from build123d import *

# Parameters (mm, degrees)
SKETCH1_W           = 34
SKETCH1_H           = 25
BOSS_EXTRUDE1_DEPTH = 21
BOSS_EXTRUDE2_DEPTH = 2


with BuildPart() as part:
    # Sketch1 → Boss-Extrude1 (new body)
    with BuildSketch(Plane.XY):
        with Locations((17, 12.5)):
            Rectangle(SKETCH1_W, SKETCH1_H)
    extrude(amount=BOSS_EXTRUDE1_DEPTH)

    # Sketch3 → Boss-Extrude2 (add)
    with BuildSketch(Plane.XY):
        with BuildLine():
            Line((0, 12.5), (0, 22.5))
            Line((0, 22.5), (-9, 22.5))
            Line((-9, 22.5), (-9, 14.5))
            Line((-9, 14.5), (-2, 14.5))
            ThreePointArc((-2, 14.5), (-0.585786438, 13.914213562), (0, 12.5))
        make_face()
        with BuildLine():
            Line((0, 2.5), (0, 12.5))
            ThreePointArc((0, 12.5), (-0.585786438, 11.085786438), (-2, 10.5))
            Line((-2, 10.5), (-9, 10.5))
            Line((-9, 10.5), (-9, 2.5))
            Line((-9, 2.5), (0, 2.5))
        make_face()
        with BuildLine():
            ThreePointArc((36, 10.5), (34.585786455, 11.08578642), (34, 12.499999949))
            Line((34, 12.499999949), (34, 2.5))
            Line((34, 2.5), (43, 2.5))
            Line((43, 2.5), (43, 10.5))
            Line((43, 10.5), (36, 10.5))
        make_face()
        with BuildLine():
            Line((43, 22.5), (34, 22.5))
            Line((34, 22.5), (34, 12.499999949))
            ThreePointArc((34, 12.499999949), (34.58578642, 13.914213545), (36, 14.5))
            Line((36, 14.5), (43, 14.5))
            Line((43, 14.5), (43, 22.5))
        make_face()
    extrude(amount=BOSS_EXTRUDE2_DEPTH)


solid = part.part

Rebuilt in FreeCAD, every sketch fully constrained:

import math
import FreeCAD as App
import Part
import Sketcher

V = App.Vector
Q = App.Units.Quantity

doc = App.newDocument("Part")
body = doc.addObject("PartDesign::Body", "Body")

sketch1 = body.newObject("Sketcher::SketchObject", "Sketch")
sketch1.AttachmentSupport = (doc.getObject("XY_Plane"), [""])
sketch1.MapMode = "FlatFace"
sketch1.addGeometry([
    Part.LineSegment(V(0, 25, 0), V(0, 0, 0)),
    Part.LineSegment(V(0, 0, 0), V(34, 0, 0)),
    Part.LineSegment(V(34, 0, 0), V(34, 25, 0)),
    Part.LineSegment(V(34, 25, 0), V(0, 25, 0)),
], False)
sketch1.addConstraint([
    Sketcher.Constraint("Coincident", 0, 2, 1, 1),
    Sketcher.Constraint("Coincident", 1, 2, 2, 1),
    Sketcher.Constraint("Coincident", 2, 2, 3, 1),
    Sketcher.Constraint("Coincident", 3, 2, 0, 1),
    Sketcher.Constraint("Vertical", 0),
    Sketcher.Constraint("Horizontal", 1),
    Sketcher.Constraint("Vertical", 2),
    Sketcher.Constraint("Horizontal", 3),
    Sketcher.Constraint("Coincident", 0, 2, -1, 1),
    Sketcher.Constraint("DistanceX", 1, 1, 1, 2, Q("34 mm")),
    Sketcher.Constraint("DistanceY", 0, 2, 0, 1, Q("25 mm")),
])
pad1 = body.newObject("PartDesign::Pad", "Pad")
pad1.Profile = sketch1
pad1.Length = 21

sketch2 = body.newObject("Sketcher::SketchObject", "Sketch001")
sketch2.AttachmentSupport = (doc.getObject("XY_Plane"), [""])
sketch2.MapMode = "FlatFace"
sketch2.addGeometry([
    Part.LineSegment(V(0, 12.5, 0), V(0, 22.5, 0)),
    Part.LineSegment(V(0, 22.5, 0), V(-9, 22.5, 0)),
    Part.LineSegment(V(-9, 22.5, 0), V(-9, 14.5, 0)),
    Part.LineSegment(V(-9, 14.5, 0), V(-2, 14.5, 0)),
    Part.ArcOfCircle(Part.Circle(V(-2, 12.5, 0), V(0, 0, 1), 2), math.radians(0), math.radians(90)),
    Part.LineSegment(V(0, 2.5, 0), V(0, 12.5, 0)),
    Part.ArcOfCircle(Part.Circle(V(-2, 12.5, 0), V(0, 0, 1), 2), math.radians(-90), math.radians(0)),
    Part.LineSegment(V(-2, 10.5, 0), V(-9, 10.5, 0)),
    Part.LineSegment(V(-9, 10.5, 0), V(-9, 2.5, 0)),
    Part.LineSegment(V(-9, 2.5, 0), V(0, 2.5, 0)),
    Part.ArcOfCircle(Part.Circle(V(36, 12.5, 0), V(0, 0, 1), 2), math.radians(-180), math.radians(-90)),
    Part.LineSegment(V(34, 12.5, 0), V(34, 2.5, 0)),
    Part.LineSegment(V(34, 2.5, 0), V(43, 2.5, 0)),
    Part.LineSegment(V(43, 2.5, 0), V(43, 10.5, 0)),
    Part.LineSegment(V(43, 10.5, 0), V(36, 10.5, 0)),
    Part.LineSegment(V(43, 22.5, 0), V(34, 22.5, 0)),
    Part.LineSegment(V(34, 22.5, 0), V(34, 12.5, 0)),
    Part.ArcOfCircle(Part.Circle(V(36, 12.5, 0), V(0, 0, 1), 2), math.radians(90), math.radians(180)),
    Part.LineSegment(V(36, 14.5, 0), V(43, 14.5, 0)),
    Part.LineSegment(V(43, 14.5, 0), V(43, 22.5, 0)),
], False)
sketch2.addConstraint([
    Sketcher.Constraint("Coincident", 0, 2, 1, 1),
    Sketcher.Constraint("Coincident", 1, 2, 2, 1),
    Sketcher.Constraint("Coincident", 2, 2, 3, 1),
    Sketcher.Constraint("Tangent", 3, 2, 4, 2),
    Sketcher.Constraint("Tangent", 4, 1, 0, 1),
    Sketcher.Constraint("Tangent", 5, 2, 6, 2),
    Sketcher.Constraint("Tangent", 6, 1, 7, 1),
    Sketcher.Constraint("Coincident", 7, 2, 8, 1),
    Sketcher.Constraint("Coincident", 8, 2, 9, 1),
    Sketcher.Constraint("Coincident", 9, 2, 5, 1),
    Sketcher.Constraint("Tangent", 10, 1, 11, 1),
    Sketcher.Constraint("Coincident", 11, 2, 12, 1),
    Sketcher.Constraint("Coincident", 12, 2, 13, 1),
    Sketcher.Constraint("Coincident", 13, 2, 14, 1),
    Sketcher.Constraint("Tangent", 14, 2, 10, 2),
    Sketcher.Constraint("Coincident", 15, 2, 16, 1),
    Sketcher.Constraint("Tangent", 16, 2, 17, 2),
    Sketcher.Constraint("Tangent", 17, 1, 18, 1),
    Sketcher.Constraint("Coincident", 18, 2, 19, 1),
    Sketcher.Constraint("Coincident", 19, 2, 15, 1),
    Sketcher.Constraint("Vertical", 0),
    Sketcher.Constraint("Horizontal", 1),
    Sketcher.Constraint("Vertical", 2),
    Sketcher.Constraint("Horizontal", 3),
    Sketcher.Constraint("Vertical", 5),
    Sketcher.Constraint("Horizontal", 7),
    Sketcher.Constraint("Vertical", 8),
    Sketcher.Constraint("Horizontal", 9),
    Sketcher.Constraint("Vertical", 11),
    Sketcher.Constraint("Horizontal", 12),
    Sketcher.Constraint("Vertical", 13),
    Sketcher.Constraint("Horizontal", 14),
    Sketcher.Constraint("Horizontal", 15),
    Sketcher.Constraint("Vertical", 16),
    Sketcher.Constraint("Horizontal", 18),
    Sketcher.Constraint("Vertical", 19),
    Sketcher.Constraint("Coincident", 6, 3, 4, 3),
    Sketcher.Constraint("Coincident", 17, 3, 10, 3),
    Sketcher.Constraint("Equal", 4, 6),
    Sketcher.Constraint("Equal", 6, 10),
    Sketcher.Constraint("Equal", 10, 17),
    Sketcher.Constraint("PointOnObject", 0, 2, -2),
    Sketcher.Constraint("Horizontal", 6, 3, 10, 3),
    Sketcher.Constraint("Horizontal", 9, 2, 11, 2),
    Sketcher.Constraint("Horizontal", 1, 2, 15, 2),
    Sketcher.Constraint("Vertical", 2, 2, 7, 2),
    Sketcher.Constraint("Vertical", 13, 2, 18, 2),
    Sketcher.Constraint("Equal", 9, 12),
    Sketcher.Constraint("Equal", 0, 5),
    Sketcher.Constraint("Radius", 4, Q("2 mm")),
    Sketcher.Constraint("DistanceX", 1, 2, 1, 1, Q("9 mm")),
    Sketcher.Constraint("DistanceY", 0, 1, 0, 2, Q("10 mm")),
    Sketcher.Constraint("DistanceX", -1, 1, 10, 3, Q("36 mm")),
    Sketcher.Constraint("DistanceY", -1, 1, 4, 3, Q("12.5 mm")),
])
pad2 = body.newObject("PartDesign::Pad", "Pad001")
pad2.Profile = sketch2
pad2.Length = 2

doc.recompute()
